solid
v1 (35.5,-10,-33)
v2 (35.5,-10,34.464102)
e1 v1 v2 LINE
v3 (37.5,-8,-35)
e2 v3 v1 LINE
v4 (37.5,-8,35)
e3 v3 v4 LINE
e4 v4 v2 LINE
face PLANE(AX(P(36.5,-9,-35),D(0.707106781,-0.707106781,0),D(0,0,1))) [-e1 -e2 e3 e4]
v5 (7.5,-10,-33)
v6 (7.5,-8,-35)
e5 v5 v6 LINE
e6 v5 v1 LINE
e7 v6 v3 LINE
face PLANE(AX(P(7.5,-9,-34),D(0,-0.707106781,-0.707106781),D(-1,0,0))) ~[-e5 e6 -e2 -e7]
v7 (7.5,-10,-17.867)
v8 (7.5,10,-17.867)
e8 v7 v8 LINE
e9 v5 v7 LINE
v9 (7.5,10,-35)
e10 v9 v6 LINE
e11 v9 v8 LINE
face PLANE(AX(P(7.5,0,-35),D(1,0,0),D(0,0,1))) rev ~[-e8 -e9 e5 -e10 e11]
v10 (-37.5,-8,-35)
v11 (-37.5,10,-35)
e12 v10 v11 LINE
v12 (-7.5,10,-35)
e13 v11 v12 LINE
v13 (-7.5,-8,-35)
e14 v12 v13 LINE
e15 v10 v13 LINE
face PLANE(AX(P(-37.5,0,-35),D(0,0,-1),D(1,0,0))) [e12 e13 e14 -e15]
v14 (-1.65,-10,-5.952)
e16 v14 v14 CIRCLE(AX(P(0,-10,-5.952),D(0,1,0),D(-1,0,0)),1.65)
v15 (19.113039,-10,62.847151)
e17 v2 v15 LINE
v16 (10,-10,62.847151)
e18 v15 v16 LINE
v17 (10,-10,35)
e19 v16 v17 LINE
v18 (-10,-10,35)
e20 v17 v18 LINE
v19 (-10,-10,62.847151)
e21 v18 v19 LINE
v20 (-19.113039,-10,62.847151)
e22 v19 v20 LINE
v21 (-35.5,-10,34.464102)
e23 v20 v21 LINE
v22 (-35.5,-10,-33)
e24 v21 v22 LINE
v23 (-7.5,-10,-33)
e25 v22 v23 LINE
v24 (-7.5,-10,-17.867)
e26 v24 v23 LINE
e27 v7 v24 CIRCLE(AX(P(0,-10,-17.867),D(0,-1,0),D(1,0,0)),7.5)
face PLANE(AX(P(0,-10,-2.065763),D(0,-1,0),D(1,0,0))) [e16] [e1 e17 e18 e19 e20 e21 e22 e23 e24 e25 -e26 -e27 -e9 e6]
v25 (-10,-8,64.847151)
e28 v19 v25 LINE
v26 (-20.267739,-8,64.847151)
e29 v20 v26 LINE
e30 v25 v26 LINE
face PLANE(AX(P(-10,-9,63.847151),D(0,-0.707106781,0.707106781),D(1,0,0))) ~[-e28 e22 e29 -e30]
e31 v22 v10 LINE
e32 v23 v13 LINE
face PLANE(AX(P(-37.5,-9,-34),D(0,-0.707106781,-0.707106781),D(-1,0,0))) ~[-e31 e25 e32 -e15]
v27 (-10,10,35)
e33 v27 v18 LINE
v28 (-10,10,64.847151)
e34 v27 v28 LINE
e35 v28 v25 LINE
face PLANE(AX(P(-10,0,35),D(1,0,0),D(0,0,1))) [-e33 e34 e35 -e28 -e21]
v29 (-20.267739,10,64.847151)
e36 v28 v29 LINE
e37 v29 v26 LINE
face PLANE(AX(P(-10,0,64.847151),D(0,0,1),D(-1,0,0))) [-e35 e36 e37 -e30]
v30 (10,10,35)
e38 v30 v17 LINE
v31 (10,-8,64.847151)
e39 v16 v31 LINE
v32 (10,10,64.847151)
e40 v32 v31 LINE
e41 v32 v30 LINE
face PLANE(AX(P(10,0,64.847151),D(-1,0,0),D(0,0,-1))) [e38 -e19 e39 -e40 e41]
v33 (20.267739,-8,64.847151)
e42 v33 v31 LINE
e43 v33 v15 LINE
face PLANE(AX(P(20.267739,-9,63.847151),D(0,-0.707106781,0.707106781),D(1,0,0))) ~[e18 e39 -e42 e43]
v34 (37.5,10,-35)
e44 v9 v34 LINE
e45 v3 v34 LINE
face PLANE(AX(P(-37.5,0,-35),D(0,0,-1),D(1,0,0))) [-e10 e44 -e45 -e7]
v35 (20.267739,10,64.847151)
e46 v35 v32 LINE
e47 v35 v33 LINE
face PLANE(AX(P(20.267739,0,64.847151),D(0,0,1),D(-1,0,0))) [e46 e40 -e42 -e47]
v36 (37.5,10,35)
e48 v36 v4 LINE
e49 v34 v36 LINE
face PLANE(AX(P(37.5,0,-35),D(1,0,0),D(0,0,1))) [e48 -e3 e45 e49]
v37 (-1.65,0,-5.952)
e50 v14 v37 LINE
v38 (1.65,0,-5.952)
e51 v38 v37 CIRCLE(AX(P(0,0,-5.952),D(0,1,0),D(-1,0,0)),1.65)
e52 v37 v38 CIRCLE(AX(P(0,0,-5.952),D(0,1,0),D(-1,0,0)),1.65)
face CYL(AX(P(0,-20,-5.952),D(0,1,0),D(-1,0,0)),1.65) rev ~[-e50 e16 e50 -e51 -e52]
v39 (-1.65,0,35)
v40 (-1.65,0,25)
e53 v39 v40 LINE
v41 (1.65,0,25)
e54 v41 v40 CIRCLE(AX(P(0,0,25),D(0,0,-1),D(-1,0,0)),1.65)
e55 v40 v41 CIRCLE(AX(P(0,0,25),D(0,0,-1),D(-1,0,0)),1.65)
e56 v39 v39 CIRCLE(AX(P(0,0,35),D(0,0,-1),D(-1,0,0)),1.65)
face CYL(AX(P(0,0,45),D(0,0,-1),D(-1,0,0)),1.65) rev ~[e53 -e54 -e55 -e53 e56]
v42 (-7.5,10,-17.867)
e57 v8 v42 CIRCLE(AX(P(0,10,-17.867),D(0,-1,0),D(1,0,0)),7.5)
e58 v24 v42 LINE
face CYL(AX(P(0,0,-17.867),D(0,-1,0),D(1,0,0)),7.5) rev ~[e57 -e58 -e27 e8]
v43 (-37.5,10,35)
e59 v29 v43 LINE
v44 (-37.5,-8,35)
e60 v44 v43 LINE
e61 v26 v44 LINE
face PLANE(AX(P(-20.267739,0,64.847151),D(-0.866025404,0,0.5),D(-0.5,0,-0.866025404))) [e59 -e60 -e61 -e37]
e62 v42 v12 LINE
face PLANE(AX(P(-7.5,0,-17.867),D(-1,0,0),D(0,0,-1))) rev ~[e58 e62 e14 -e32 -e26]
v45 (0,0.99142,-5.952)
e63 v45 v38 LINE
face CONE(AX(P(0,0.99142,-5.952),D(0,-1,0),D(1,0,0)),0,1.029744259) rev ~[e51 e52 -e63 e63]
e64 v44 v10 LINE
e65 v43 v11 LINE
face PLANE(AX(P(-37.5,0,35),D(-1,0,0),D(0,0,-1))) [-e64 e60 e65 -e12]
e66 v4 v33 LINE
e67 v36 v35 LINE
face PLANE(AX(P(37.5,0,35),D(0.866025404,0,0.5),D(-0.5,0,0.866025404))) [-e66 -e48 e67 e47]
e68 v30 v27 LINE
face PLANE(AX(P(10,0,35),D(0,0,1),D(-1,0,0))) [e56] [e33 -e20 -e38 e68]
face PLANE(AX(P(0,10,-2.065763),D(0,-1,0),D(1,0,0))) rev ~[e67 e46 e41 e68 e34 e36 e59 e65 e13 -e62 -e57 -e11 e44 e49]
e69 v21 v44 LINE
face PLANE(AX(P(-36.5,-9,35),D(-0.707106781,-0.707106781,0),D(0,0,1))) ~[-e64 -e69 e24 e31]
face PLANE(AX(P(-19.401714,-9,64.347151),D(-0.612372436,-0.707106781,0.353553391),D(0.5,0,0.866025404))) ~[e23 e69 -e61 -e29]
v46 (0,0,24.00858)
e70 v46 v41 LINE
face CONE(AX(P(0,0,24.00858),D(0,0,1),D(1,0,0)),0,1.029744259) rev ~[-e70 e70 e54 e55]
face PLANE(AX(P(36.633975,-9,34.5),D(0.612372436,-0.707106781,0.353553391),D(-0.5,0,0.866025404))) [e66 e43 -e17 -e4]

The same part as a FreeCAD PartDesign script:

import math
import FreeCAD as App
import Part
import Sketcher
Q = App.Units.Quantity


def edges_at(feature, points):
    """Names of the edges that pass closest to the given points."""
    edges = feature.Shape.Edges
    near = lambda p: min(range(len(edges)), key=lambda i: edges[i].distToShape(Part.Vertex(*p))[0])
    return sorted({f"Edge{near(p) + 1}" for p in points})


def add_polygon(sketch, points):
    """Adds a closed chain of lines whose ends are joined by coincident constraints."""
    first, n = sketch.GeometryCount, len(points)
    for a, b in zip(points, points[1:] + points[:1]):
        sketch.addGeometry(Part.LineSegment(App.Vector(*a, 0), App.Vector(*b, 0)), False)
    for i in range(n):
        sketch.addConstraint(Sketcher.Constraint("Coincident", first + i, 2, first + (i + 1) % n, 1))

doc = App.newDocument("Part")
body = doc.addObject("PartDesign::Body", "Body")

# Sketch on XZ plane
sketch1 = doc.addObject("Sketcher::SketchObject", "Sketch")
body.addObject(sketch1)
sketch1.AttachmentSupport = (doc.XZ_Plane, [""])
sketch1.MapMode = "FlatFace"
add_polygon(sketch1, [(37.5, -35), (37.5, 35), (20.267739, 64.847151), (10, 64.847151), (10, 35), (-10, 35), (-10, 64.847151), (-20.267739, 64.847151), (-37.5, 35), (-37.5, -35)])  # lines 0-9
sketch1.addConstraint([
    Sketcher.Constraint("Vertical", 0),
    Sketcher.Constraint("Horizontal", 2),
    Sketcher.Constraint("Vertical", 3),
    Sketcher.Constraint("Horizontal", 4),
    Sketcher.Constraint("Vertical", 5),
    Sketcher.Constraint("Horizontal", 6),
    Sketcher.Constraint("Vertical", 8),
    Sketcher.Constraint("Horizontal", 9),
    Sketcher.Constraint("Symmetric", 0, 2, 8, 2, -1, 1),
    Sketcher.Constraint("Symmetric", 2, 2, 5, 2, -2),
    Sketcher.Constraint("Horizontal", 0, 2, 3, 2),
    Sketcher.Constraint("Horizontal", 4, 2, 7, 2),
    Sketcher.Constraint("Equal", 2, 6),
    Sketcher.Constraint("DistanceX", 4, 2, 4, 1, 20.0),
    Sketcher.Constraint("DistanceX", 9, 1, 9, 2, 75.0),
    Sketcher.Constraint("DistanceY", 0, 1, 0, 2, 70.0),
    Sketcher.Constraint("Angle", 1, Q("120 deg")),
    Sketcher.Constraint("DistanceX", 2, 2, 2, 1, 10.267739),
])
pad1 = doc.addObject("PartDesign::Pad", "Pad")
body.addObject(pad1)
pad1.Profile = sketch1
pad1.Length = 20
pad1.Midplane = True

# Sketch on XZ plane
sketch2 = doc.addObject("Sketcher::SketchObject", "Sketch001")
body.addObject(sketch2)
sketch2.AttachmentSupport = (doc.XZ_Plane, [""])
sketch2.MapMode = "FlatFace"
sketch2.addGeometry([
    Part.LineSegment(App.Vector(-7.5, -17.867, 0), App.Vector(-7.5, -35, 0)),
    Part.LineSegment(App.Vector(-7.5, -35, 0), App.Vector(7.5, -35, 0)),
    Part.LineSegment(App.Vector(7.5, -35, 0), App.Vector(7.5, -17.867, 0)),
    Part.ArcOfCircle(Part.Circle(App.Vector(0, -17.867, 0), App.Vector(0, 0, 1), 7.5), math.radians(0), math.radians(180)),
], False)
sketch2.addConstraint([
    Sketcher.Constraint("Coincident", 0, 2, 1, 1),
    Sketcher.Constraint("Coincident", 1, 2, 2, 1),
    Sketcher.Constraint("Tangent", 2, 2, 3, 1),
    Sketcher.Constraint("Tangent", 3, 2, 0, 1),
    Sketcher.Constraint("Vertical", 0),
    Sketcher.Constraint("Horizontal", 1),
    Sketcher.Constraint("Vertical", 2),
    Sketcher.Constraint("PointOnObject", 3, 3, -2),
    Sketcher.Constraint("Radius", 3, 7.5),
    Sketcher.Constraint("DistanceY", 0, 2, -1, 1, 35.0),
    Sketcher.Constraint("DistanceY", 0, 2, 0, 1, 17.133),
])
pocket1 = doc.addObject("PartDesign::Pocket", "Pocket")
body.addObject(pocket1)
pocket1.Profile = sketch2
pocket1.Length = 50
pocket1.Midplane = True
doc.recompute()

chamfer = doc.addObject("PartDesign::Chamfer", "Chamfer")
body.addObject(chamfer)
chamfer.Base = (pocket1, edges_at(pocket1, [
    (37.5, -10, 0),
    (28.884, -10, 49.924),
    (22.5, -10, -35),
    (-22.5, -10, -35),
    (-37.5, -10, 0),
    (-28.884, -10, 49.924),
    (-15.134, -10, 64.847),
    (15.134, -10, 64.847),
]))
chamfer.Size = 2

# Sketch on XZ plane
sketch3 = doc.addObject("Sketcher::SketchObject", "Sketch002")
body.addObject(sketch3)
sketch3.AttachmentSupport = (doc.XZ_Plane, [""])
sketch3.MapMode = "FlatFace"
sketch3.AttachmentOffset = App.Placement(App.Vector(0, 0, 10), App.Rotation())
sketch3.addGeometry(Part.Circle(App.Vector(0, -5.952, 0), App.Vector(0, 0, 1), 1.65), False)
sketch3.addConstraint([
    Sketcher.Constraint("PointOnObject", 0, 3, -2),
    Sketcher.Constraint("Diameter", 0, 3.3),
    Sketcher.Constraint("DistanceY", 0, 3, -1, 1, 5.952),
])
doc.recompute()
hole = doc.addObject("PartDesign::Hole", "Hole")
body.addObject(hole)
hole.Profile = sketch3
hole.ThreadType = "None"
hole.Diameter = 3.3
hole.DepthType = "Dimension"
hole.Depth = 10
hole.DrillPoint = "Angled"
hole.DrillPointAngle = 118

# Sketch on XY plane
sketch4 = doc.addObject("Sketcher::SketchObject", "Sketch003")
body.addObject(sketch4)
sketch4.AttachmentSupport = (doc.XY_Plane, [""])
sketch4.MapMode = "FlatFace"
sketch4.AttachmentOffset = App.Placement(App.Vector(0, 0, 35), App.Rotation())
sketch4.addGeometry(Part.Circle(App.Vector(0, 0, 0), App.Vector(0, 0, 1), 1.65), False)
sketch4.addConstraint([
    Sketcher.Constraint("Coincident", 0, 3, -1, 1),
    Sketcher.Constraint("Diameter", 0, 3.3),
])
doc.recompute()
hole2 = doc.addObject("PartDesign::Hole", "Hole001")
body.addObject(hole2)
hole2.Profile = sketch4
hole2.ThreadType = "None"
hole2.Diameter = 3.3
hole2.DepthType = "Dimension"
hole2.Depth = 10
hole2.DrillPoint = "Angled"
hole2.DrillPointAngle = 118

doc.recompute()
